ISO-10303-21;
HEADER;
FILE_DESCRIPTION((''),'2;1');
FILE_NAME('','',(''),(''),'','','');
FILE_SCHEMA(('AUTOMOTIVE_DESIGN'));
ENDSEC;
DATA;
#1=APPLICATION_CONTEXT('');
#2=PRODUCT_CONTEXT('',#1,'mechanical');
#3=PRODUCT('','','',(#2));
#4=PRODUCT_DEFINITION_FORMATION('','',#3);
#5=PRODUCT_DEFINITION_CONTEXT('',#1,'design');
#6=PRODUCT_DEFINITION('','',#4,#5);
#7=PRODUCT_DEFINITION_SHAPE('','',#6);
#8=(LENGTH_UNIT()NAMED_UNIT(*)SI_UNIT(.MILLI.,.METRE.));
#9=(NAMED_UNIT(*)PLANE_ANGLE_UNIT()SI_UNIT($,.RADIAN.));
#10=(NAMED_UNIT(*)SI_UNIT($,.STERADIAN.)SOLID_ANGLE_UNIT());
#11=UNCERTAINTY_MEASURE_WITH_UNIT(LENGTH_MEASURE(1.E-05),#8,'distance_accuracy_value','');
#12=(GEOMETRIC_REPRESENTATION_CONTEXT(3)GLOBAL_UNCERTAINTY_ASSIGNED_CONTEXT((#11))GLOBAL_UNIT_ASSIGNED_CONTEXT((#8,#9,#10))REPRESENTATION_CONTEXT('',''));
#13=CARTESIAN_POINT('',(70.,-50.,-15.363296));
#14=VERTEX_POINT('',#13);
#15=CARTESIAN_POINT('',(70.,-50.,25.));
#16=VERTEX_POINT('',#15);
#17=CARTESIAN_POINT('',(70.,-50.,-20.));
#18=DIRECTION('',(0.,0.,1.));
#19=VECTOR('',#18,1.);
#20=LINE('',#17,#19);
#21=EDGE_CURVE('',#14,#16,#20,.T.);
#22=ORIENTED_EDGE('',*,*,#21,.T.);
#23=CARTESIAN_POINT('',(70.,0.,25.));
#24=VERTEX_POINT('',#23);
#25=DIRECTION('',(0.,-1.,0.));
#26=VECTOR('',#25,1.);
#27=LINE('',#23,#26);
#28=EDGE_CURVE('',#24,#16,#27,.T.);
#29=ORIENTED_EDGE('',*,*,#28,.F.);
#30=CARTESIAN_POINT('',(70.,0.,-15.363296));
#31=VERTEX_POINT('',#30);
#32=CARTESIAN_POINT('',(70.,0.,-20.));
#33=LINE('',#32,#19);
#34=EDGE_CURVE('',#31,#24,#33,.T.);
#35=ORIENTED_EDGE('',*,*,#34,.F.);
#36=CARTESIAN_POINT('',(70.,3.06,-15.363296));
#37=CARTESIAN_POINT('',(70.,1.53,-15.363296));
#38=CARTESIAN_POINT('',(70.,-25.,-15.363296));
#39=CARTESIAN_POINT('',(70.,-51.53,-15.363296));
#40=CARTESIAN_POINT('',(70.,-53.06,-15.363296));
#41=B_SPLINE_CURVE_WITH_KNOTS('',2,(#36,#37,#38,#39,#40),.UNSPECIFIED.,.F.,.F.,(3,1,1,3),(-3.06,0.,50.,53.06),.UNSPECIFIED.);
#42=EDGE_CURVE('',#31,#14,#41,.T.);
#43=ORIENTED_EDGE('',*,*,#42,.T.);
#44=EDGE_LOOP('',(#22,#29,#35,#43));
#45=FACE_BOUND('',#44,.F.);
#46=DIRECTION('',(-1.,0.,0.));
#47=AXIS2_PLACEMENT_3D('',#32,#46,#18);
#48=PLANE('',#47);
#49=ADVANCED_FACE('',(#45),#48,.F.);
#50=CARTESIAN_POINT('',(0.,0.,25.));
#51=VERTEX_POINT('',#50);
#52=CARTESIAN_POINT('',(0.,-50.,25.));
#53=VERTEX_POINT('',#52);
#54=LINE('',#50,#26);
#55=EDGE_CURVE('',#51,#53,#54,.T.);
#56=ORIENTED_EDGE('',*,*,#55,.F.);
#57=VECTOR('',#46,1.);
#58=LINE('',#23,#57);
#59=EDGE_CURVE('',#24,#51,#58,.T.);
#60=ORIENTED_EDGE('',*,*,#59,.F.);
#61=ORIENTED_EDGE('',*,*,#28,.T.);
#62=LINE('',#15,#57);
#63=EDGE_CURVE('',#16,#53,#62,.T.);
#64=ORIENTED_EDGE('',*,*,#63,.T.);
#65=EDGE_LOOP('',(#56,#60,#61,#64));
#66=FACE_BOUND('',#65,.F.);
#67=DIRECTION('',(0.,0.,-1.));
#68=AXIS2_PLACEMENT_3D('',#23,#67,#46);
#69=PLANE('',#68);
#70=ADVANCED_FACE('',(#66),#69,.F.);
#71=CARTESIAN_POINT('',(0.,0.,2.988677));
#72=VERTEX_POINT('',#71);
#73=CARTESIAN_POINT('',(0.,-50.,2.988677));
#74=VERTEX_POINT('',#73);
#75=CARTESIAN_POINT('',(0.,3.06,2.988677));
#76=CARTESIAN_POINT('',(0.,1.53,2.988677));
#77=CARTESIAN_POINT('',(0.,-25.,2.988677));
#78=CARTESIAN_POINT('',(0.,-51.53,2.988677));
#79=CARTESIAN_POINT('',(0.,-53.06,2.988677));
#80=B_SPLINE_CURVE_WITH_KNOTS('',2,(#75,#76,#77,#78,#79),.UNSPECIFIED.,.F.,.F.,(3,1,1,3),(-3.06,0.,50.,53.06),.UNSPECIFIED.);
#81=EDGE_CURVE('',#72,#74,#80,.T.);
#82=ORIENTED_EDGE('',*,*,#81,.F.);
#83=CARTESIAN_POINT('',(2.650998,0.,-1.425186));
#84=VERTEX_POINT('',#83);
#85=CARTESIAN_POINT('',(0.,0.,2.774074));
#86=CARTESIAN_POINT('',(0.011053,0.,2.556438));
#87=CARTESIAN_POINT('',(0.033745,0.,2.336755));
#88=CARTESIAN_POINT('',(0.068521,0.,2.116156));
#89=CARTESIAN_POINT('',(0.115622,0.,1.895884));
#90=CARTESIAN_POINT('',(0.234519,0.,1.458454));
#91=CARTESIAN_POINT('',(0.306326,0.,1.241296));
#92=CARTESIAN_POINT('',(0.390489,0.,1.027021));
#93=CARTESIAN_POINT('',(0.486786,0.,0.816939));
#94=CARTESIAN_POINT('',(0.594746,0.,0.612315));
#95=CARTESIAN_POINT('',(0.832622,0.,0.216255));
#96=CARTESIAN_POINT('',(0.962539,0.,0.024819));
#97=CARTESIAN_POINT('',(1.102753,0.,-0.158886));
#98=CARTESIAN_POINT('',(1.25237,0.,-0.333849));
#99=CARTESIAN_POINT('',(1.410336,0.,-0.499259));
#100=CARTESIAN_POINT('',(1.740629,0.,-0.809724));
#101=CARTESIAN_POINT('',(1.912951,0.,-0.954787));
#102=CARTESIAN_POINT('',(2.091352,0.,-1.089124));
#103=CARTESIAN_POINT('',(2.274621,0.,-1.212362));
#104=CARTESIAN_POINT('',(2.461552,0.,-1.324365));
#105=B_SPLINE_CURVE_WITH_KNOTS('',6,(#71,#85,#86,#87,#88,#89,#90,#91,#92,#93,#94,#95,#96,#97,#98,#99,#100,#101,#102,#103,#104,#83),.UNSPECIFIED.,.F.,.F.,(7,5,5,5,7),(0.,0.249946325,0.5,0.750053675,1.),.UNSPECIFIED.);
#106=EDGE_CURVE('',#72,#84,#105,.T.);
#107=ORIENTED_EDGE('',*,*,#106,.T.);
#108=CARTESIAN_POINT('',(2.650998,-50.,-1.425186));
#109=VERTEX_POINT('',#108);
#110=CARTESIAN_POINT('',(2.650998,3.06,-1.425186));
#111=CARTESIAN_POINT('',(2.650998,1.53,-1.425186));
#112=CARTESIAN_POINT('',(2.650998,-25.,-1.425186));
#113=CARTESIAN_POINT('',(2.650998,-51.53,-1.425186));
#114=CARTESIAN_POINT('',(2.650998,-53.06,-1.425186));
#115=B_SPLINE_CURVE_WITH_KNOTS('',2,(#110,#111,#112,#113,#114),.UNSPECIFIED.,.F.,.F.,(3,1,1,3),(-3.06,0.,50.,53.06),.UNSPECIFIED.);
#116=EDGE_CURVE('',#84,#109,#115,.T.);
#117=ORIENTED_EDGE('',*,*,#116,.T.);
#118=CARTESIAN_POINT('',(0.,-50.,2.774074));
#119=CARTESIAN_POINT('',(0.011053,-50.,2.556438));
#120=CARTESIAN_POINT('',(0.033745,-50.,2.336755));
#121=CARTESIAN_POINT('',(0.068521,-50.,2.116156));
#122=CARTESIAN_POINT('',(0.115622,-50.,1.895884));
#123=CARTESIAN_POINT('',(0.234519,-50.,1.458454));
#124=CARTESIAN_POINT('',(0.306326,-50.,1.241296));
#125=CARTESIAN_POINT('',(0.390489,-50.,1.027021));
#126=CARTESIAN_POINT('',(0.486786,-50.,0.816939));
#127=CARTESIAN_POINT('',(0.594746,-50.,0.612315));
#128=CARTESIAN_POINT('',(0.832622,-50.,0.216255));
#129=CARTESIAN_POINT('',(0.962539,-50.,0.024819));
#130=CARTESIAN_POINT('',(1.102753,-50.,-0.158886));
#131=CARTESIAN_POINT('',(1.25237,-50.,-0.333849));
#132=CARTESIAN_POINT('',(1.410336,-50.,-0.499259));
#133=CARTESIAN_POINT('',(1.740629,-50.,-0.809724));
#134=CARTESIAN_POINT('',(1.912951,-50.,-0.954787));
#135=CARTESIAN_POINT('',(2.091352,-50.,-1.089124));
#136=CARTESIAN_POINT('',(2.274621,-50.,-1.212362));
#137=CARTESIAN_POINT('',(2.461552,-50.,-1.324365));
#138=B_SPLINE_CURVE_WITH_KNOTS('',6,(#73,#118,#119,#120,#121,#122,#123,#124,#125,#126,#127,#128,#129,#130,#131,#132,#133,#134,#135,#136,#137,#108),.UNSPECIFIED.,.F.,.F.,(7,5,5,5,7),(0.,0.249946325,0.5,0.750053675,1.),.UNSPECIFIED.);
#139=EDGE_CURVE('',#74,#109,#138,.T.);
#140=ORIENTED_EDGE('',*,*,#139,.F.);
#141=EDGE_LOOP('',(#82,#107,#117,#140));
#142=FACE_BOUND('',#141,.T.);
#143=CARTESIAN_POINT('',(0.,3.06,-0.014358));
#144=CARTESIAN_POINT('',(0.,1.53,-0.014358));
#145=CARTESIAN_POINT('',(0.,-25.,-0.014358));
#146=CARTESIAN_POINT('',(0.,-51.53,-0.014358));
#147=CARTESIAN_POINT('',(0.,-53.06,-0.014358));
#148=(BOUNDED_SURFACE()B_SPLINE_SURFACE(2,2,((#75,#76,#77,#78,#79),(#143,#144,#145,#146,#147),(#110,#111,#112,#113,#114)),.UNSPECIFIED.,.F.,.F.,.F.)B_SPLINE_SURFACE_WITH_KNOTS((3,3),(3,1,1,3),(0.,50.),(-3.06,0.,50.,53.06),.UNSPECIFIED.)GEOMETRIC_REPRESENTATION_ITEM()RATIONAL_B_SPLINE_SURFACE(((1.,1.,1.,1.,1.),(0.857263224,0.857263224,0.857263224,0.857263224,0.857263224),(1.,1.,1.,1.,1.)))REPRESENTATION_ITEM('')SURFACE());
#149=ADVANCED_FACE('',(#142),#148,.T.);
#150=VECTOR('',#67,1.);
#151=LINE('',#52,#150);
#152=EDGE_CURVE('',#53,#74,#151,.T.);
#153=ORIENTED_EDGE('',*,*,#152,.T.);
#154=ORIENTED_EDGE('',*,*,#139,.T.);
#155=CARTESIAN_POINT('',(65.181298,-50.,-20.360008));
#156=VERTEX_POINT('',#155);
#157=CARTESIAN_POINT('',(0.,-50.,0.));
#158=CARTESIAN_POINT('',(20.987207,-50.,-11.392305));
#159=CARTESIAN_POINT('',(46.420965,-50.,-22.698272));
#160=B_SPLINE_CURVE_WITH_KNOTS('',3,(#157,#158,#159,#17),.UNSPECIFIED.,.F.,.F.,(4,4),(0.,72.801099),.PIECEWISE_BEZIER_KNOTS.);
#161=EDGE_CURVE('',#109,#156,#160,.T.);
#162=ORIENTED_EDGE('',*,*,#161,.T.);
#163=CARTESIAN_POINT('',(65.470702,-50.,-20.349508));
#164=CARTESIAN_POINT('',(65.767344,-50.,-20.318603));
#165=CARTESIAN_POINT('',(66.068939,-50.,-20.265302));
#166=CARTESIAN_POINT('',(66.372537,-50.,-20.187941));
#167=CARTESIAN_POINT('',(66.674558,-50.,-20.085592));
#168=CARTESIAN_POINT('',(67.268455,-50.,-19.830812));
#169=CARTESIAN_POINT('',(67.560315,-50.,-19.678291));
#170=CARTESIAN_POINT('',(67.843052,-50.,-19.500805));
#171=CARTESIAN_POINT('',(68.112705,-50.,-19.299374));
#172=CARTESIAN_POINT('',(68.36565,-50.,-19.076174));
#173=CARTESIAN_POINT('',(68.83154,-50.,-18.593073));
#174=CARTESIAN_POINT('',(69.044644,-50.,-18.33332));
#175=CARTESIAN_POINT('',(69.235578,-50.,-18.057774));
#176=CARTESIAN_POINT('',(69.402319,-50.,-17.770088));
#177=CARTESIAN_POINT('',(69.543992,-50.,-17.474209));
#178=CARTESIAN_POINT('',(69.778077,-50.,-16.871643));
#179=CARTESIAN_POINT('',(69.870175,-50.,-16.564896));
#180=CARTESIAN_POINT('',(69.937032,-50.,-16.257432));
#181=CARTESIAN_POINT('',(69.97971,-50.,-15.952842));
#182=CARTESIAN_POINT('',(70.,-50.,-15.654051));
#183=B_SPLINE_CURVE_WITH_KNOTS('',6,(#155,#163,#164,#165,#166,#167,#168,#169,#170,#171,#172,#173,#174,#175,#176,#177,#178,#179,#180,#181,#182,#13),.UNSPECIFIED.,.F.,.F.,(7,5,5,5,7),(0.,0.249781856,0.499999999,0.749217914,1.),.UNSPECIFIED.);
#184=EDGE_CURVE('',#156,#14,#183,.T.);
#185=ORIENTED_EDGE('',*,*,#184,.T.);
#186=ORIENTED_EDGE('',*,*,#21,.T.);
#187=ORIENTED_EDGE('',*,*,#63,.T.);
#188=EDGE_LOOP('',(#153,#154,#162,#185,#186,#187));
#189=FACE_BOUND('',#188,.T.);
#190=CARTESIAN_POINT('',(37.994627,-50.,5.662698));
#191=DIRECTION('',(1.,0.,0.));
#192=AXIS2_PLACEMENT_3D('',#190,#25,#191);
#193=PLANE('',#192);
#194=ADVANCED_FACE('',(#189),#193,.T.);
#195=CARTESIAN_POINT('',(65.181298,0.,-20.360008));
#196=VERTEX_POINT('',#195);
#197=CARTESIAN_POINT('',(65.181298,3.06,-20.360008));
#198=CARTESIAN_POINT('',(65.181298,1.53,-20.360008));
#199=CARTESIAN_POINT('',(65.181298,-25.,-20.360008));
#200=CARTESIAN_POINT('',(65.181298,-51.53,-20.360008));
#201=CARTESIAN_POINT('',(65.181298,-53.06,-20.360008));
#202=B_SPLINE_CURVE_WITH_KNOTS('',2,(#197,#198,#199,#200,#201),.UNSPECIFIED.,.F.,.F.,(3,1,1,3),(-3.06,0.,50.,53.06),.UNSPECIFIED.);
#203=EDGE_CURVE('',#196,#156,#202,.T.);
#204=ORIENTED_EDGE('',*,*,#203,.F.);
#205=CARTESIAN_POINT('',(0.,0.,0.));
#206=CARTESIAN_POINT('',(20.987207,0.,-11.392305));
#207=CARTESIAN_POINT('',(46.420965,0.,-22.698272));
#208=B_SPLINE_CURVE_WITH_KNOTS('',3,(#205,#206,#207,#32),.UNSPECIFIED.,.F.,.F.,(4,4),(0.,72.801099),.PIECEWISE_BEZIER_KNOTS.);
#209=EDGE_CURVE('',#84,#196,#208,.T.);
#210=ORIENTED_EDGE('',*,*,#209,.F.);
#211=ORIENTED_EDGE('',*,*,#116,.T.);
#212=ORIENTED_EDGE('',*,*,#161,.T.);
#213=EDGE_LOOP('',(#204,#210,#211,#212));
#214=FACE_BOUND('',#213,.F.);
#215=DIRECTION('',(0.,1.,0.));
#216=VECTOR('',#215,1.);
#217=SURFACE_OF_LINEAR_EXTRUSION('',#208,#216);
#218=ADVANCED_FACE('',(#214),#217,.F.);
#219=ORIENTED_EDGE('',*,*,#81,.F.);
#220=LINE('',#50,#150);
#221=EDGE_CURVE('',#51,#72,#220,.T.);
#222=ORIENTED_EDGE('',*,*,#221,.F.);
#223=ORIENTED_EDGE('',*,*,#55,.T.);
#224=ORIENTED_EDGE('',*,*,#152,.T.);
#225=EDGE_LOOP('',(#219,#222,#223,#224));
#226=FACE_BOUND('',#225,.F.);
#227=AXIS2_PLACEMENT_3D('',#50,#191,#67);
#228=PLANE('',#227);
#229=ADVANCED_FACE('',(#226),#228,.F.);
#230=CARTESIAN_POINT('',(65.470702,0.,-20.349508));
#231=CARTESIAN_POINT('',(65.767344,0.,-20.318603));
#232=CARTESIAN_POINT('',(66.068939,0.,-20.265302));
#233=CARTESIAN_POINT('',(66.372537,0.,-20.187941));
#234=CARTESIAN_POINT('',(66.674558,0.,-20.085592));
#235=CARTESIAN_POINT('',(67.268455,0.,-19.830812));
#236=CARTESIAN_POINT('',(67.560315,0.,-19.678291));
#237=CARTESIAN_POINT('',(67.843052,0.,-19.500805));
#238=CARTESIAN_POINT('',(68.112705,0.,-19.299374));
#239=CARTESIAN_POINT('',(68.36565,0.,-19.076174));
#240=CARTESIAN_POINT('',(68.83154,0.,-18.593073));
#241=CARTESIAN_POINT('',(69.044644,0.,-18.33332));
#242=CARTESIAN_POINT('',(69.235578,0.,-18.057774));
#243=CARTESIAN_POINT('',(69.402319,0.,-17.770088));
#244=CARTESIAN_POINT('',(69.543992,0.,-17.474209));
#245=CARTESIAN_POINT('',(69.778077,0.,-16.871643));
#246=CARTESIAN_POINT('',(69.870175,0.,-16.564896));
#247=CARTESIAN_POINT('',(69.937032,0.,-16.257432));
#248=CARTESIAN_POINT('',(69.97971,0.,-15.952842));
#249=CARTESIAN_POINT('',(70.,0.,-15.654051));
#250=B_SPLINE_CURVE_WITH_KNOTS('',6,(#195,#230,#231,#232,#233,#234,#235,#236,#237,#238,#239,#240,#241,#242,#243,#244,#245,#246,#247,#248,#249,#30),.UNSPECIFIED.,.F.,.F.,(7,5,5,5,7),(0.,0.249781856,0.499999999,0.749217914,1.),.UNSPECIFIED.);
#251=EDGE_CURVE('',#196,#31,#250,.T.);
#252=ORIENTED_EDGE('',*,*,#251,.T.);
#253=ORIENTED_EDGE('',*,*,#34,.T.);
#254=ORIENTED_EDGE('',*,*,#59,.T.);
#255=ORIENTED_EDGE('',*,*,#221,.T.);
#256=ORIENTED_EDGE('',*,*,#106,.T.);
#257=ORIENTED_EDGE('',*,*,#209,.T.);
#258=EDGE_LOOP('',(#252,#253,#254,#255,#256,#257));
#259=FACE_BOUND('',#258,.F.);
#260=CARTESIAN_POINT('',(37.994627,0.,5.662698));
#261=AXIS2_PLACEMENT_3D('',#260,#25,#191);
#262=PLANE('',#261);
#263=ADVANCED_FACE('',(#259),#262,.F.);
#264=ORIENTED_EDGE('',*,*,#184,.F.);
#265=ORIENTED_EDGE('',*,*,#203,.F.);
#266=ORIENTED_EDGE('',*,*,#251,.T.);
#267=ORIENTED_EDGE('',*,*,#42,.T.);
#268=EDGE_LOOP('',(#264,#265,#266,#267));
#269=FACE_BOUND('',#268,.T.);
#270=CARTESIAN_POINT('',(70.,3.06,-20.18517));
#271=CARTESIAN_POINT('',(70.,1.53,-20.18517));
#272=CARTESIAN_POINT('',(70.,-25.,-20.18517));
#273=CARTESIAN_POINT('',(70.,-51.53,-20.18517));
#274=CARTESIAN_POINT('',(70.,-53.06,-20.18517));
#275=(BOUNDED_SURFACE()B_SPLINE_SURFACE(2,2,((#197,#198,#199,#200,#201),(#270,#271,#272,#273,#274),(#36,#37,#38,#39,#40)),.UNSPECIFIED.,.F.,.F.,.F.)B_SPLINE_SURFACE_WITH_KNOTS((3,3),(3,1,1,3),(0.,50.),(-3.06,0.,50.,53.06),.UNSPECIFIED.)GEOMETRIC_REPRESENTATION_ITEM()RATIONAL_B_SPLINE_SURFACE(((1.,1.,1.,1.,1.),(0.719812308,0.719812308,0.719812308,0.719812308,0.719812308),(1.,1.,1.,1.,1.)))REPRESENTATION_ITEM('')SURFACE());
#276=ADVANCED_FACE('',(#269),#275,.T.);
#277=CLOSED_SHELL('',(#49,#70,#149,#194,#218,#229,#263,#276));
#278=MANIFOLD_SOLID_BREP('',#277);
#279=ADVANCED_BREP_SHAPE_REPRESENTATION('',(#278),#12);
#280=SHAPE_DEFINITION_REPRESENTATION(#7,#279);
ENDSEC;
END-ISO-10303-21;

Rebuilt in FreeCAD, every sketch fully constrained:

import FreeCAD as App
import Part
import Sketcher


def edges_at(feature, points):
    """Names of the edges that pass closest to the given points."""
    edges = feature.Shape.Edges
    near = lambda p: min(range(len(edges)), key=lambda i: edges[i].distToShape(Part.Vertex(*p))[0])
    return sorted({f"Edge{near(p) + 1}" for p in points})

doc = App.newDocument("Part")
params = doc.addObject("Spreadsheet::Sheet", "Params")
for row, (alias, value) in enumerate([
    ("sketch1_height", "25 mm"),
    ("pad1_length", "50 mm"),
    ("fillet_radius", "5 mm"),
], start=1):
    params.set(f"A{row}", alias)
    params.set(f"B{row}", "=" + value)
    params.setAlias(f"B{row}", alias)

body = doc.addObject("PartDesign::Body", "Body")

# Sketch on XZ plane
sketch1 = body.newObject("Sketcher::SketchObject", "Sketch")
sketch1.AttachmentSupport = (doc.getObject("XZ_Plane"), [""])
sketch1.MapMode = "FlatFace"
sketch1.addGeometry([
    Part.LineSegment(App.Vector(0, 25, 0), App.Vector(0, 0, 0)),
    Part.BSplineCurve([App.Vector(0, 0, 0), App.Vector(20.987207, -11.392305, 0), App.Vector(46.420965, -22.698272, 0), App.Vector(70, -20, 0)], [4, 4], [0, 72.801099], False, 3, [1, 1, 1, 1], False),
    Part.LineSegment(App.Vector(70, -20, 0), App.Vector(70, 25, 0)),
    Part.LineSegment(App.Vector(70, 25, 0), App.Vector(0, 25, 0)),
], False)
sketch1.addConstraint([
    Sketcher.Constraint("Block", 1),
    Sketcher.Constraint("Coincident", 0, 2, 1, 1),
    Sketcher.Constraint("Coincident", 1, 2, 2, 1),
    Sketcher.Constraint("Coincident", 2, 2, 3, 1),
    Sketcher.Constraint("Coincident", 3, 2, 0, 1),
    Sketcher.Constraint("Vertical", 0),
    Sketcher.Constraint("Vertical", 2),
    Sketcher.Constraint("Horizontal", 3),
    Sketcher.Constraint("DistanceY", 0, 2, 0, 1, 25.0),
])
sketch1.setExpression("Constraints[8]", "Params.sketch1_height")
pad1 = body.newObject("PartDesign::Pad", "Pad")
pad1.Profile = sketch1
pad1.setExpression("Length", "Params.pad1_length")
doc.recompute()

fillet = body.newObject("PartDesign::Fillet", "Fillet")
fillet.Base = (pad1, edges_at(pad1, [(70, -25, -20), (0, -25, 0)]))
fillet.setExpression("Radius", "Params.fillet_radius")

doc.recompute()
